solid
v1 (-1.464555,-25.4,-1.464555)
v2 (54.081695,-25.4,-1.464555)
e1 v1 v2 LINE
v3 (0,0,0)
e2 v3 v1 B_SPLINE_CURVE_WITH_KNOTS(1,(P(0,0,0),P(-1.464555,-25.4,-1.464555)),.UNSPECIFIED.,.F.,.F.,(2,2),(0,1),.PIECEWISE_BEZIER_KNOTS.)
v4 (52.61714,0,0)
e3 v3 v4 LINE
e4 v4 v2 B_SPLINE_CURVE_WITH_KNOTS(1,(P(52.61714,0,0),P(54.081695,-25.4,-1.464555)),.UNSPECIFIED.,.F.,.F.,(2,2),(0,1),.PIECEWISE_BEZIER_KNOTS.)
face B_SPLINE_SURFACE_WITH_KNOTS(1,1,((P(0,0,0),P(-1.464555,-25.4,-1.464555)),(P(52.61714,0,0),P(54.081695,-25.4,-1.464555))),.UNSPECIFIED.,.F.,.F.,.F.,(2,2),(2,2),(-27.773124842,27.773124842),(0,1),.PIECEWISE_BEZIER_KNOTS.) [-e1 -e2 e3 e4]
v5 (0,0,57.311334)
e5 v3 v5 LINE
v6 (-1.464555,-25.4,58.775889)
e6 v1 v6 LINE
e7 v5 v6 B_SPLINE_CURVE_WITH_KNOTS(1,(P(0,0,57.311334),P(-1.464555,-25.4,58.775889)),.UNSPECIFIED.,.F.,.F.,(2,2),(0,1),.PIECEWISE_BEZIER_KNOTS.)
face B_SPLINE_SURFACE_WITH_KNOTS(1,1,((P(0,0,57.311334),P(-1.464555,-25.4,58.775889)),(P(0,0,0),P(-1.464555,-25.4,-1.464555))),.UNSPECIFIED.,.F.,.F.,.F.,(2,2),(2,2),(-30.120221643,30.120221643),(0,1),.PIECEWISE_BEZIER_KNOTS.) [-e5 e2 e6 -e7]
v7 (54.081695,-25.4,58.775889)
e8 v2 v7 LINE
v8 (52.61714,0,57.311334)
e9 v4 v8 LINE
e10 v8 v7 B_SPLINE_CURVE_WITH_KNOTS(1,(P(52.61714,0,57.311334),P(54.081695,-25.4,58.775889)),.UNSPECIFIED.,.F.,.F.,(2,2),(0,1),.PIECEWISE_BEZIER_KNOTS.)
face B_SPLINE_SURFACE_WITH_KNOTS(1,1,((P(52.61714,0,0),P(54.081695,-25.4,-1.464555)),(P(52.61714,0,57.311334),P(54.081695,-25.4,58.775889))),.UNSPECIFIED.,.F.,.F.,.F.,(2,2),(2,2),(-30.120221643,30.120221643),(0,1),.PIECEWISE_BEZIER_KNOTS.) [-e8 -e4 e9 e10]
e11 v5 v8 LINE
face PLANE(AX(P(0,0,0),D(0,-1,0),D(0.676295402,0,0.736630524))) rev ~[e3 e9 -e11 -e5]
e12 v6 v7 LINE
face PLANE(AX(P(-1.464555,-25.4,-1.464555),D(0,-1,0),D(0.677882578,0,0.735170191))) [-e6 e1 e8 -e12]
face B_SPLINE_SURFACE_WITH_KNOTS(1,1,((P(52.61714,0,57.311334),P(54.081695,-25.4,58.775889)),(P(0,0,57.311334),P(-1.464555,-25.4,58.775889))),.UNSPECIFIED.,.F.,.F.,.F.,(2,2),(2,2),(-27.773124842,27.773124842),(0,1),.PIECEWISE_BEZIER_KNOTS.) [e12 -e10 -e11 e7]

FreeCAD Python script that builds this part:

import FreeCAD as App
import Part
import Sketcher
from FreeCAD import Vector
Q = App.Units.Quantity

doc = App.newDocument("Part")
body = doc.addObject("PartDesign::Body", "Body")

# Sketch on XZ plane
sketch1 = doc.addObject("Sketcher::SketchObject", "Sketch")
body.addObject(sketch1)
sketch1.AttachmentSupport = (doc.XZ_Plane, [""])
sketch1.MapMode = "FlatFace"
sketch1.addGeometry(Part.LineSegment(Vector(0, 57, 0), Vector(0, 0, 0)), False)
sketch1.addGeometry(Part.LineSegment(Vector(0, 0, 0), Vector(53, 0, 0)), False)
sketch1.addGeometry(Part.LineSegment(Vector(53, 0, 0), Vector(53, 57, 0)), False)
sketch1.addGeometry(Part.LineSegment(Vector(53, 57, 0), Vector(0, 57, 0)), False)
sketch1.addConstraint(Sketcher.Constraint("Coincident", 0, 2, 1, 1))
sketch1.addConstraint(Sketcher.Constraint("Coincident", 1, 2, 2, 1))
sketch1.addConstraint(Sketcher.Constraint("Coincident", 2, 2, 3, 1))
sketch1.addConstraint(Sketcher.Constraint("Coincident", 3, 2, 0, 1))
sketch1.addConstraint(Sketcher.Constraint("Vertical", 0))
sketch1.addConstraint(Sketcher.Constraint("Horizontal", 1))
sketch1.addConstraint(Sketcher.Constraint("Vertical", 2))
sketch1.addConstraint(Sketcher.Constraint("Horizontal", 3))
sketch1.addConstraint(Sketcher.Constraint("Coincident", 0, 2, -1, 1))
sketch1.addConstraint(Sketcher.Constraint("DistanceX", 1, 1, 1, 2, 52.61714))
sketch1.addConstraint(Sketcher.Constraint("DistanceY", 0, 2, 0, 1, 57.311334))
pad1 = doc.addObject("PartDesign::Pad", "Pad")
body.addObject(pad1)
pad1.Profile = sketch1
pad1.Length = Q("1 in")
pad1.TaperAngle = 3.3

doc.recompute()
